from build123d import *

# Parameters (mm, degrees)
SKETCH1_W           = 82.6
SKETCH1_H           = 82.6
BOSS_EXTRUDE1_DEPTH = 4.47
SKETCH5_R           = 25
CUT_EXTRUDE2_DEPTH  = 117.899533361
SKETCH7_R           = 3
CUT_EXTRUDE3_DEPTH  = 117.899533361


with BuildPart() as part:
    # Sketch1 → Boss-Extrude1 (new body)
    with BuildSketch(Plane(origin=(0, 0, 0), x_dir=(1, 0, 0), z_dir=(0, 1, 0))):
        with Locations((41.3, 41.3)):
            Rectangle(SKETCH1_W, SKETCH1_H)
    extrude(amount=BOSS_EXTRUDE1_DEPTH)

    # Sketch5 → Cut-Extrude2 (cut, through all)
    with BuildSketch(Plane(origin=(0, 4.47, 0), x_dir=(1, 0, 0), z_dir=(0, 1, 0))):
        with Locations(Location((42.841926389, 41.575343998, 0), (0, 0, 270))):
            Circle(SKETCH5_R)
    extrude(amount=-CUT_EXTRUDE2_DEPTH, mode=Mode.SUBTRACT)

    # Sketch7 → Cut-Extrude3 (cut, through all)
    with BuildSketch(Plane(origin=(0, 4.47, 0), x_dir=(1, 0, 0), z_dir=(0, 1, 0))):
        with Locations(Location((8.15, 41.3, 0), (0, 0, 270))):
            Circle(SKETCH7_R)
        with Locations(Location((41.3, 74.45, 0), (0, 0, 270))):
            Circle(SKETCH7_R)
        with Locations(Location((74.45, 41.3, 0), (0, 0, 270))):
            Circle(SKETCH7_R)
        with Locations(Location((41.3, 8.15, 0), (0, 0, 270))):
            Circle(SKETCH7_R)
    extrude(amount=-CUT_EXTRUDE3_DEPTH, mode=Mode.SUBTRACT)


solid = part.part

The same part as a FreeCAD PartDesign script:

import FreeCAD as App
import Part
import Sketcher


def add_polygon(sketch, points):
    """Adds a closed chain of lines whose ends are joined by coincident constraints."""
    first, n = sketch.GeometryCount, len(points)
    for a, b in zip(points, points[1:] + points[:1]):
        sketch.addGeometry(Part.LineSegment(App.Vector(*a, 0), App.Vector(*b, 0)), False)
    for i in range(n):
        sketch.addConstraint(Sketcher.Constraint("Coincident", first + i, 2, first + (i + 1) % n, 1))

doc = App.newDocument("Part")
body = doc.addObject("PartDesign::Body", "Body")

sketch1 = body.newObject("Sketcher::SketchObject", "Sketch")
sketch1.AttachmentSupport = (doc.getObject("XZ_Plane"), [""])
sketch1.MapMode = "FlatFace"
add_polygon(sketch1, [(0, -83), (0, 0), (83, 0), (83, -83)])
sketch1.addConstraint([
    Sketcher.Constraint("Vertical", 0),
    Sketcher.Constraint("Horizontal", 1),
    Sketcher.Constraint("Vertical", 2),
    Sketcher.Constraint("Horizontal", 3),
    Sketcher.Constraint("Coincident", 0, 2, -1, 1),
    Sketcher.Constraint("Equal", 3, 0),
    Sketcher.Constraint("DistanceX", 1, 1, 1, 2, 82.6),
])
pad1 = body.newObject("PartDesign::Pad", "Pad")
pad1.Profile = sketch1
pad1.Length = 4.47
pad1.Reversed = True

sketch2 = body.newObject("Sketcher::SketchObject", "Sketch001")
sketch2.AttachmentSupport = (doc.getObject("XZ_Plane"), [""])
sketch2.MapMode = "FlatFace"
sketch2.AttachmentOffset = App.Placement(App.Vector(0, 0, -4.47), App.Rotation())
sketch2.addGeometry(Part.Circle(App.Vector(43, -42, 0), App.Vector(0, 0, 1), 25), False)
sketch2.addConstraint([
    Sketcher.Constraint("Diameter", 0, 50.0),
    Sketcher.Constraint("DistanceX", -1, 1, 0, 3, 42.841926),
    Sketcher.Constraint("DistanceY", 0, 3, -1, 1, 41.575344),
])
pocket1 = body.newObject("PartDesign::Pocket", "Pocket")
pocket1.Profile = sketch2
pocket1.Type = "ThroughAll"
pocket1.Reversed = True

sketch3 = body.newObject("Sketcher::SketchObject", "Sketch002")
sketch3.AttachmentSupport = (doc.getObject("XZ_Plane"), [""])
sketch3.MapMode = "FlatFace"
sketch3.AttachmentOffset = App.Placement(App.Vector(0, 0, -4.47), App.Rotation())
sketch3.addGeometry([
    Part.Circle(App.Vector(8.2, -41.3, 0), App.Vector(0, 0, 1), 3),
    Part.Circle(App.Vector(41.3, -74.5, 0), App.Vector(0, 0, 1), 3),
    Part.Circle(App.Vector(74.5, -41.3, 0), App.Vector(0, 0, 1), 3),
    Part.Circle(App.Vector(41.3, -8.2, 0), App.Vector(0, 0, 1), 3),
], False)
sketch3.addConstraint([
    Sketcher.Constraint("Equal", 0, 1),
    Sketcher.Constraint("Equal", 1, 2),
    Sketcher.Constraint("Equal", 2, 3),
    Sketcher.Constraint("Horizontal", 0, 3, 2, 3),
    Sketcher.Constraint("Vertical", 1, 3, 3, 3),
    Sketcher.Constraint("Diameter", 0, 6.0),
    Sketcher.Constraint("DistanceY", 0, 3, -1, 1, 41.3),
    Sketcher.Constraint("DistanceX", -1, 1, 1, 3, 41.3),
    Sketcher.Constraint("DistanceX", 0, 3, 2, 3, 66.3),
    Sketcher.Constraint("DistanceY", 1, 3, 3, 3, 66.3),
    Sketcher.Constraint("DistanceX", -1, 1, 0, 3, 8.15),
    Sketcher.Constraint("DistanceY", 1, 3, -1, 1, 74.45),
])
pocket2 = body.newObject("PartDesign::Pocket", "Pocket001")
pocket2.Profile = sketch3
pocket2.Type = "ThroughAll"
pocket2.Reversed = True

doc.recompute()
